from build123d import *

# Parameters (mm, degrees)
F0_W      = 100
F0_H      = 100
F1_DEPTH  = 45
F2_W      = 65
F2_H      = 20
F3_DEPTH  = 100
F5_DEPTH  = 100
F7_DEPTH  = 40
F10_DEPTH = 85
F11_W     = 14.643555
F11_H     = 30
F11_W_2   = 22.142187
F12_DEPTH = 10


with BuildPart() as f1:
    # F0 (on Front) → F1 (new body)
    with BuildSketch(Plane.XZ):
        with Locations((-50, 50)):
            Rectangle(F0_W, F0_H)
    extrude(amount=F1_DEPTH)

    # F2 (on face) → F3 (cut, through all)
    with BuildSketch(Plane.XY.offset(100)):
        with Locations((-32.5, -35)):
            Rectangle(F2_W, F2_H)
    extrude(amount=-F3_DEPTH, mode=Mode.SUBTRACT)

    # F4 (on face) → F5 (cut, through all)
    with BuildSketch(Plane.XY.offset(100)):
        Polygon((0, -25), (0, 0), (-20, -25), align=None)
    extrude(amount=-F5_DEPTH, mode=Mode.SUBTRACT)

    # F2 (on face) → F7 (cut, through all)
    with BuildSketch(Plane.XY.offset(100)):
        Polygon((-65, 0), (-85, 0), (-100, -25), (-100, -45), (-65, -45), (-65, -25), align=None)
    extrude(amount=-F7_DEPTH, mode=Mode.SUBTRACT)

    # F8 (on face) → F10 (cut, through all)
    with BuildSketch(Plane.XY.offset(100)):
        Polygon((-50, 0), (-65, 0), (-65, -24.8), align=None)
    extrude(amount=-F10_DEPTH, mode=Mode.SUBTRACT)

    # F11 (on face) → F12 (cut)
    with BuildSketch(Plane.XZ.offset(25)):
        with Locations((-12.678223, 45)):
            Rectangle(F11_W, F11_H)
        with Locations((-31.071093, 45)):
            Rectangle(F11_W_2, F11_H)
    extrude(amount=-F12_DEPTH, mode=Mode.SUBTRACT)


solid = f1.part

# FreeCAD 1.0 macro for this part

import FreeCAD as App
import Part
import Sketcher
Q = App.Units.Quantity


def add_polygon(sketch, points):
    """Adds a closed chain of lines whose ends are joined by coincident constraints."""
    first, n = sketch.GeometryCount, len(points)
    for a, b in zip(points, points[1:] + points[:1]):
        sketch.addGeometry(Part.LineSegment(App.Vector(*a, 0), App.Vector(*b, 0)), False)
    for i in range(n):
        sketch.addConstraint(Sketcher.Constraint("Coincident", first + i, 2, first + (i + 1) % n, 1))

doc = App.newDocument("Part")
params = doc.addObject("Spreadsheet::Sheet", "Params")
for row, (alias, value) in enumerate([
    ("sketch1_width", "100 mm"),
    ("pad1_length", "45 mm"),
    ("sketch2_width", "65 mm"),
    ("sketch2_height", "20 mm"),
    ("sketch3_width", "20 mm"),
    ("sketch3_height", "25 mm"),
    ("sketch4_width", "20 mm"),
    ("sketch4_width2", "35 mm"),
    ("sketch4_height", "45 mm"),
    ("pocket3_length", "40 mm"),
    ("sketch5_width", "15 mm"),
    ("sketch5_height", "24.8 mm"),
    ("pocket4_length", "85 mm"),
    ("sketch6_height", "30 mm"),
    ("pocket5_length", "10 mm"),
], start=1):
    params.set(f"A{row}", alias)
    params.set(f"B{row}", "=" + value)
    params.setAlias(f"B{row}", alias)

body = doc.addObject("PartDesign::Body", "Body")

# Sketch on XZ plane
sketch1 = body.newObject("Sketcher::SketchObject", "Sketch")
sketch1.AttachmentSupport = (doc.getObject("XZ_Plane"), [""])
sketch1.MapMode = "FlatFace"
add_polygon(sketch1, [(-100, 100), (-100, 0), (0, 0), (0, 100)])  # lines 0-3
sketch1.addConstraint(Sketcher.Constraint("Vertical", 0))
sketch1.addConstraint(Sketcher.Constraint("Horizontal", 1))
sketch1.addConstraint(Sketcher.Constraint("Vertical", 2))
sketch1.addConstraint(Sketcher.Constraint("Horizontal", 3))
sketch1.addConstraint(Sketcher.Constraint("Coincident", 1, 2, -1, 1))
sketch1.addConstraint(Sketcher.Constraint("Equal", 3, 0))
sketch1.addConstraint(Sketcher.Constraint("DistanceX", 1, 1, 1, 2, Q("100 mm")))
sketch1.setExpression("Constraints[10]", "Params.sketch1_width")
pad1 = body.newObject("PartDesign::Pad", "Pad")
pad1.Profile = sketch1
pad1.setExpression("Length", "Params.pad1_length")

# Sketch on XY plane
sketch2 = body.newObject("Sketcher::SketchObject", "Sketch001")
sketch2.AttachmentSupport = (doc.getObject("XY_Plane"), [""])
sketch2.MapMode = "FlatFace"
sketch2.AttachmentOffset = App.Placement(App.Vector(0, 0, 100), App.Rotation())
add_polygon(sketch2, [(-65, -25), (-65, -45), (0, -45), (0, -25)])  # lines 0-3
sketch2.addConstraint(Sketcher.Constraint("Vertical", 0))
sketch2.addConstraint(Sketcher.Constraint("Horizontal", 1))
sketch2.addConstraint(Sketcher.Constraint("Vertical", 2))
sketch2.addConstraint(Sketcher.Constraint("Horizontal", 3))
sketch2.addConstraint(Sketcher.Constraint("PointOnObject", 1, 2, -2))
sketch2.addConstraint(Sketcher.Constraint("DistanceX", 1, 1, 1, 2, Q("65 mm")))
sketch2.addConstraint(Sketcher.Constraint("DistanceY", 0, 2, 0, 1, Q("20 mm")))
sketch2.addConstraint(Sketcher.Constraint("DistanceY", 0, 2, -1, 1, Q("45 mm")))
sketch2.setExpression("Constraints[9]", "Params.sketch2_width")
sketch2.setExpression("Constraints[10]", "Params.sketch2_height")
pocket1 = body.newObject("PartDesign::Pocket", "Pocket")
pocket1.Profile = sketch2
pocket1.Type = "ThroughAll"

# Sketch on XY plane
sketch3 = body.newObject("Sketcher::SketchObject", "Sketch002")
sketch3.AttachmentSupport = (doc.getObject("XY_Plane"), [""])
sketch3.MapMode = "FlatFace"
sketch3.AttachmentOffset = App.Placement(App.Vector(0, 0, 100), App.Rotation())
add_polygon(sketch3, [(0, -25), (0, 0), (-20, -25)])  # lines 0-2
sketch3.addConstraint(Sketcher.Constraint("Vertical", 0))
sketch3.addConstraint(Sketcher.Constraint("Horizontal", 2))
sketch3.addConstraint(Sketcher.Constraint("Coincident", 0, 2, -1, 1))
sketch3.addConstraint(Sketcher.Constraint("DistanceX", 2, 1, 2, 2, Q("20 mm")))
sketch3.addConstraint(Sketcher.Constraint("DistanceY", 0, 1, 0, 2, Q("25 mm")))
sketch3.setExpression("Constraints[6]", "Params.sketch3_width")
sketch3.setExpression("Constraints[7]", "Params.sketch3_height")
pocket2 = body.newObject("PartDesign::Pocket", "Pocket001")
pocket2.Profile = sketch3
pocket2.Type = "ThroughAll"

# Sketch on XY plane
sketch4 = body.newObject("Sketcher::SketchObject", "Sketch003")
sketch4.AttachmentSupport = (doc.getObject("XY_Plane"), [""])
sketch4.MapMode = "FlatFace"
sketch4.AttachmentOffset = App.Placement(App.Vector(0, 0, 100), App.Rotation())
add_polygon(sketch4, [(-65, 0), (-85, 0), (-100, -25), (-100, -45), (-65, -45)])  # lines 0-4
sketch4.addConstraint(Sketcher.Constraint("Horizontal", 0))
sketch4.addConstraint(Sketcher.Constraint("Vertical", 2))
sketch4.addConstraint(Sketcher.Constraint("Horizontal", 3))
sketch4.addConstraint(Sketcher.Constraint("Vertical", 4))
sketch4.addConstraint(Sketcher.Constraint("PointOnObject", 0, 2, -1))
sketch4.addConstraint(Sketcher.Constraint("Equal", 0, 2))
sketch4.addConstraint(Sketcher.Constraint("DistanceX", 0, 2, 0, 1, Q("20 mm")))
sketch4.addConstraint(Sketcher.Constraint("DistanceX", 3, 1, 3, 2, Q("35 mm")))
sketch4.addConstraint(Sketcher.Constraint("DistanceY", 4, 1, 4, 2, Q("45 mm")))
sketch4.addConstraint(Sketcher.Constraint("DistanceX", 0, 2, -1, 1, Q("85 mm")))
sketch4.setExpression("Constraints[11]", "Params.sketch4_width")
sketch4.setExpression("Constraints[12]", "Params.sketch4_width2")
sketch4.setExpression("Constraints[13]", "Params.sketch4_height")
pocket3 = body.newObject("PartDesign::Pocket", "Pocket002")
pocket3.Profile = sketch4
pocket3.setExpression("Length", "Params.pocket3_length")

# Sketch on XY plane
sketch5 = body.newObject("Sketcher::SketchObject", "Sketch004")
sketch5.AttachmentSupport = (doc.getObject("XY_Plane"), [""])
sketch5.MapMode = "FlatFace"
sketch5.AttachmentOffset = App.Placement(App.Vector(0, 0, 100), App.Rotation())
add_polygon(sketch5, [(-50, 0), (-65, 0), (-65, -25)])  # lines 0-2
sketch5.addConstraint(Sketcher.Constraint("Horizontal", 0))
sketch5.addConstraint(Sketcher.Constraint("Vertical", 1))
sketch5.addConstraint(Sketcher.Constraint("PointOnObject", 0, 2, -1))
sketch5.addConstraint(Sketcher.Constraint("DistanceX", 0, 2, 0, 1, Q("15 mm")))
sketch5.addConstraint(Sketcher.Constraint("DistanceY", 1, 2, 1, 1, Q("24.8 mm")))
sketch5.addConstraint(Sketcher.Constraint("DistanceX", 0, 2, -1, 1, Q("65 mm")))
sketch5.setExpression("Constraints[6]", "Params.sketch5_width")
sketch5.setExpression("Constraints[7]", "Params.sketch5_height")
pocket4 = body.newObject("PartDesign::Pocket", "Pocket003")
pocket4.Profile = sketch5
pocket4.setExpression("Length", "Params.pocket4_length")

# Sketch on XZ plane
sketch6 = body.newObject("Sketcher::SketchObject", "Sketch005")
sketch6.AttachmentSupport = (doc.getObject("XZ_Plane"), [""])
sketch6.MapMode = "FlatFace"
sketch6.AttachmentOffset = App.Placement(App.Vector(0, 0, 25), App.Rotation())
add_polygon(sketch6, [(-42, 60), (-42, 30), (-5, 30), (-5, 60)])  # lines 0-3
sketch6.addConstraint(Sketcher.Constraint("Vertical", 0))
sketch6.addConstraint(Sketcher.Constraint("Horizontal", 1))
sketch6.addConstraint(Sketcher.Constraint("Vertical", 2))
sketch6.addConstraint(Sketcher.Constraint("Horizontal", 3))
sketch6.addConstraint(Sketcher.Constraint("DistanceY", 0, 2, 0, 1, Q("30 mm")))
sketch6.addConstraint(Sketcher.Constraint("DistanceY", -1, 1, 0, 2, Q("30 mm")))
sketch6.addConstraint(Sketcher.Constraint("DistanceX", 1, 1, 1, 2, Q("36.785741 mm")))
sketch6.addConstraint(Sketcher.Constraint("DistanceX", 0, 2, -1, 1, Q("42.142187 mm")))
sketch6.setExpression("Constraints[8]", "Params.sketch6_height")
pocket5 = body.newObject("PartDesign::Pocket", "Pocket004")
pocket5.Profile = sketch6
pocket5.setExpression("Length", "Params.pocket5_length")

doc.recompute()
